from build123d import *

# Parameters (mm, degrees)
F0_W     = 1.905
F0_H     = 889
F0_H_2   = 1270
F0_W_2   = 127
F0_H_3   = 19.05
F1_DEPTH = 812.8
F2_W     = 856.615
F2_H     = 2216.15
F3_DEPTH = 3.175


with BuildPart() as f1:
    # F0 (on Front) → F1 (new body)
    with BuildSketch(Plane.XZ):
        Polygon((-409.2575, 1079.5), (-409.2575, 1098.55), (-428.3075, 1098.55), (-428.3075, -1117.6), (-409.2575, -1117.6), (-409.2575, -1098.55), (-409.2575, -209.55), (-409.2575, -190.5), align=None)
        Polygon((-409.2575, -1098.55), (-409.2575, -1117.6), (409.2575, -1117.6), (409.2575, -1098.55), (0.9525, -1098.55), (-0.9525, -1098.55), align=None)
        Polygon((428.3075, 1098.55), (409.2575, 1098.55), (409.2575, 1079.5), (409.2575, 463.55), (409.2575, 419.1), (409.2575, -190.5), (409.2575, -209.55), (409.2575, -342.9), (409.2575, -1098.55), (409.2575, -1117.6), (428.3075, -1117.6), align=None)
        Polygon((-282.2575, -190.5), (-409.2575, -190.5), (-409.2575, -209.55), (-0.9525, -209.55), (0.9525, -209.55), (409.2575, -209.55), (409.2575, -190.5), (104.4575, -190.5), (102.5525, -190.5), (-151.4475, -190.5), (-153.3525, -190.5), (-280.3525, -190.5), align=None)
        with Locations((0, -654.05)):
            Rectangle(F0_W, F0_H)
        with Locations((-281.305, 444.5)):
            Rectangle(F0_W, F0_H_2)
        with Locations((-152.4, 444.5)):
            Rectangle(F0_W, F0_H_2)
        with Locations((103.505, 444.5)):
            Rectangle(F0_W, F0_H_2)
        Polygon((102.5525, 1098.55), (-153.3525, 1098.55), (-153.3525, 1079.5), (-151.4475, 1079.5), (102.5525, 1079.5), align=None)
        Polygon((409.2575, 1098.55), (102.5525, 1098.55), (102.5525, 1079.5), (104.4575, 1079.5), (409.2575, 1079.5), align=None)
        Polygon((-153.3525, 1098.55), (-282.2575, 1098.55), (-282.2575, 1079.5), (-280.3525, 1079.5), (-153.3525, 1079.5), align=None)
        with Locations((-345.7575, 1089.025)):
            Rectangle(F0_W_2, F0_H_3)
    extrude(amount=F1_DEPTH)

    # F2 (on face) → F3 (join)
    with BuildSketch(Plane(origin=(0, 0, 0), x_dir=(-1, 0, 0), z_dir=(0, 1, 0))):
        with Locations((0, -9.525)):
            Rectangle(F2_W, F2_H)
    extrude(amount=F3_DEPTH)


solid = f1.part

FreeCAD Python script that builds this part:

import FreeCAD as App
import Part
import Sketcher
Q = App.Units.Quantity


def add_polygon(sketch, points):
    """Adds a closed chain of lines whose ends are joined by coincident constraints."""
    first, n = sketch.GeometryCount, len(points)
    for a, b in zip(points, points[1:] + points[:1]):
        sketch.addGeometry(Part.LineSegment(App.Vector(*a, 0), App.Vector(*b, 0)), False)
    for i in range(n):
        sketch.addConstraint(Sketcher.Constraint("Coincident", first + i, 2, first + (i + 1) % n, 1))

doc = App.newDocument("Part")
body = doc.addObject("PartDesign::Body", "Body")

# Sketch on XZ plane
sketch1 = body.newObject("Sketcher::SketchObject", "Sketch")
sketch1.AttachmentSupport = (doc.getObject("XZ_Plane"), [""])
sketch1.MapMode = "FlatFace"
add_polygon(sketch1, [(428.3075, 1098.55), (-428.3075, 1098.55), (-428.3075, -1117.6), (428.3075, -1117.6)])  # lines 0-3
add_polygon(sketch1, [(104.4575, -190.5), (104.4575, 1079.5), (409.2575, 1079.5), (409.2575, -190.5)])  # lines 4-7
add_polygon(sketch1, [(-282.2575, 1079.5), (-282.2575, -190.5), (-409.2575, -190.5), (-409.2575, 1079.5)])  # lines 8-11
add_polygon(sketch1, [(-153.3525, 1079.5), (-153.3525, -190.5), (-280.3525, -190.5), (-280.3525, 1079.5)])  # lines 12-15
add_polygon(sketch1, [(-409.2575, -1098.55), (-409.2575, -209.55), (-0.9525, -209.55), (-0.9525, -1098.55)])  # lines 16-19
add_polygon(sketch1, [(0.9525, -209.55), (409.2575, -209.55), (409.2575, -1098.55), (0.9525, -1098.55)])  # lines 20-23
add_polygon(sketch1, [(102.5525, 1079.5), (102.5525, -190.5), (-151.4475, -190.5), (-151.4475, 1079.5)])  # lines 24-27
sketch1.addConstraint(Sketcher.Constraint("Horizontal", 0))
sketch1.addConstraint(Sketcher.Constraint("Vertical", 1))
sketch1.addConstraint(Sketcher.Constraint("Horizontal", 2))
sketch1.addConstraint(Sketcher.Constraint("Vertical", 3))
sketch1.addConstraint(Sketcher.Constraint("Vertical", 4))
sketch1.addConstraint(Sketcher.Constraint("Horizontal", 5))
sketch1.addConstraint(Sketcher.Constraint("Vertical", 6))
sketch1.addConstraint(Sketcher.Constraint("Horizontal", 7))
sketch1.addConstraint(Sketcher.Constraint("Vertical", 8))
sketch1.addConstraint(Sketcher.Constraint("Horizontal", 9))
sketch1.addConstraint(Sketcher.Constraint("Vertical", 10))
sketch1.addConstraint(Sketcher.Constraint("Horizontal", 11))
sketch1.addConstraint(Sketcher.Constraint("Vertical", 12))
sketch1.addConstraint(Sketcher.Constraint("Horizontal", 13))
sketch1.addConstraint(Sketcher.Constraint("Vertical", 14))
sketch1.addConstraint(Sketcher.Constraint("Horizontal", 15))
sketch1.addConstraint(Sketcher.Constraint("Vertical", 16))
sketch1.addConstraint(Sketcher.Constraint("Horizontal", 17))
sketch1.addConstraint(Sketcher.Constraint("Vertical", 18))
sketch1.addConstraint(Sketcher.Constraint("Horizontal", 19))
sketch1.addConstraint(Sketcher.Constraint("Horizontal", 20))
sketch1.addConstraint(Sketcher.Constraint("Vertical", 21))
sketch1.addConstraint(Sketcher.Constraint("Horizontal", 22))
sketch1.addConstraint(Sketcher.Constraint("Vertical", 23))
sketch1.addConstraint(Sketcher.Constraint("Vertical", 24))
sketch1.addConstraint(Sketcher.Constraint("Horizontal", 25))
sketch1.addConstraint(Sketcher.Constraint("Vertical", 26))
sketch1.addConstraint(Sketcher.Constraint("Horizontal", 27))
sketch1.addConstraint(Sketcher.Constraint("Symmetric", 6, 2, 9, 2, -2))
sketch1.addConstraint(Sketcher.Constraint("Symmetric", 16, 2, 20, 2, -2))
sketch1.addConstraint(Sketcher.Constraint("Symmetric", 18, 2, 22, 2, -2))
sketch1.addConstraint(Sketcher.Constraint("Horizontal", 5, 2, 10, 2))
sketch1.addConstraint(Sketcher.Constraint("Horizontal", 9, 2, 12, 2))
sketch1.addConstraint(Sketcher.Constraint("Horizontal", 11, 2, 14, 2))
sketch1.addConstraint(Sketcher.Constraint("Horizontal", 13, 2, 24, 2))
sketch1.addConstraint(Sketcher.Constraint("Horizontal", 15, 2, 26, 2))
sketch1.addConstraint(Sketcher.Constraint("Vertical", 10, 2, 16, 2))
sketch1.addConstraint(Sketcher.Constraint("Equal", 11, 13))
sketch1.addConstraint(Sketcher.Constraint("DistanceX", 5, 1, 5, 2, Q("12 in")))
sketch1.addConstraint(Sketcher.Constraint("DistanceX", 9, 2, 9, 1, Q("5 in")))
sketch1.addConstraint(Sketcher.Constraint("DistanceX", 25, 2, 25, 1, Q("10 in")))
sketch1.addConstraint(Sketcher.Constraint("DistanceY", 4, 1, 4, 2, Q("50 in")))
sketch1.addConstraint(Sketcher.Constraint("DistanceY", 16, 1, 16, 2, Q("35 in")))
sketch1.addConstraint(Sketcher.Constraint("DistanceY", 1, 2, -1, 1, Q("44 in")))
sketch1.addConstraint(Sketcher.Constraint("DistanceX", 12, 2, 17, 2, Q("6 in")))
sketch1.addConstraint(Sketcher.Constraint("DistanceX", 23, 2, 24, 2, Q("4 in")))
sketch1.addConstraint(Sketcher.Constraint("DistanceY", 1, 2, 1, 1, Q("87.25 in")))
sketch1.addConstraint(Sketcher.Constraint("DistanceY", -1, 1, 4, 2, Q("42.5 in")))
sketch1.addConstraint(Sketcher.Constraint("DistanceX", 18, 2, 2, 2, Q("16.9 in")))
sketch1.addConstraint(Sketcher.Constraint("DistanceX", 1, 2, 22, 2, Q("16.9 in")))
sketch1.addConstraint(Sketcher.Constraint("DistanceX", 0, 2, 0, 1, Q("33.725 in")))
sketch1.addConstraint(Sketcher.Constraint("DistanceX", 17, 1, 17, 2, Q("16.075 in")))
sketch1.addConstraint(Sketcher.Constraint("DistanceY", 16, 2, -1, 1, Q("8.25 in")))
pad1 = body.newObject("PartDesign::Pad", "Pad")
pad1.Profile = sketch1
pad1.Length = Q("32 in")

# Sketch on XZ plane
sketch2 = body.newObject("Sketcher::SketchObject", "Sketch001")
sketch2.AttachmentSupport = (doc.getObject("XZ_Plane"), [""])
sketch2.MapMode = "FlatFace"
add_polygon(sketch2, [(428.3075, 1098.55), (428.3075, -1117.6), (-428.3075, -1117.6), (-428.3075, 1098.55)])  # lines 0-3
sketch2.addConstraint(Sketcher.Constraint("Vertical", 0))
sketch2.addConstraint(Sketcher.Constraint("Horizontal", 1))
sketch2.addConstraint(Sketcher.Constraint("Vertical", 2))
sketch2.addConstraint(Sketcher.Constraint("Horizontal", 3))
sketch2.addConstraint(Sketcher.Constraint("DistanceY", 0, 2, -1, 1, Q("44 in")))
sketch2.addConstraint(Sketcher.Constraint("DistanceY", 0, 2, 0, 1, Q("87.25 in")))
sketch2.addConstraint(Sketcher.Constraint("DistanceX", 1, 2, 1, 1, Q("33.725 in")))
sketch2.addConstraint(Sketcher.Constraint("DistanceX", -1, 1, 0, 2, Q("16.8625 in")))
pad2 = body.newObject("PartDesign::Pad", "Pad001")
pad2.Profile = sketch2
pad2.Length = Q("0.125 in")
pad2.Reversed = True

doc.recompute()
